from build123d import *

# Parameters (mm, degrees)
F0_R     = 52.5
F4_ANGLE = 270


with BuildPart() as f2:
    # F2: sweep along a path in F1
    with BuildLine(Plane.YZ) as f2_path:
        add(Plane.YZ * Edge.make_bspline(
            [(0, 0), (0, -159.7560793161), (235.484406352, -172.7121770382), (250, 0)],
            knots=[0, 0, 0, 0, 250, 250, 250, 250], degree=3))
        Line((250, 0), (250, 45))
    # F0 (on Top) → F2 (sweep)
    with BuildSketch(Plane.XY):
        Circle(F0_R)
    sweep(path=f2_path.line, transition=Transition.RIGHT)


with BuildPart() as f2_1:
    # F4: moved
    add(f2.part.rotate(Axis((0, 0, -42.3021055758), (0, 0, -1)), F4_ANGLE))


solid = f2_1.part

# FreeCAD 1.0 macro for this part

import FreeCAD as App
import Part
import Sketcher
from FreeCAD import Vector

doc = App.newDocument("Part")
params = doc.addObject("Spreadsheet::Sheet", "Params")
for row, (alias, value) in enumerate([
    ("sketch1_diameter", "105 mm"),
    ("sketch2_height", "45 mm"),
], start=1):
    params.set(f"A{row}", alias)
    params.set(f"B{row}", "=" + value)
    params.setAlias(f"B{row}", alias)

body = doc.addObject("PartDesign::Body", "Body")

# Sketch on XY plane
sketch1 = body.newObject("Sketcher::SketchObject", "Sketch")
sketch1.AttachmentSupport = (doc.getObject("XY_Plane"), [""])
sketch1.MapMode = "FlatFace"
sketch1.addGeometry(Part.Circle(Vector(0, 0, 0), Vector(0, 0, 1), 52), False)
sketch1.addConstraint([
    Sketcher.Constraint("Coincident", 0, 3, -1, 1),
    Sketcher.Constraint("Diameter", 0, 105.0),
])
sketch1.setExpression("Constraints[1]", "Params.sketch1_diameter")

# Sketch on YZ plane
sketch2 = body.newObject("Sketcher::SketchObject", "Sketch001")
sketch2.AttachmentSupport = (doc.getObject("YZ_Plane"), [""])
sketch2.MapMode = "FlatFace"
sketch2.addGeometry([
    Part.BSplineCurve([Vector(0, 0, 0), Vector(0, -159.756079, 0), Vector(235.484406, -172.712177, 0), Vector(250, 0, 0)], [4, 4], [0, 250], False, 3, [1, 1, 1, 1], False),
    Part.LineSegment(Vector(250, 0, 0), Vector(250, 45, 0)),
], False)
sketch2.addConstraint([
    Sketcher.Constraint("Block", 0),
    Sketcher.Constraint("Coincident", 0, 2, 1, 1),
    Sketcher.Constraint("Vertical", 1),
    Sketcher.Constraint("DistanceY", 1, 1, 1, 2, 45.0),
])
sketch2.setExpression("Constraints[3]", "Params.sketch2_height")
doc.recompute()

additivepipe = body.newObject("PartDesign::AdditivePipe", "AdditivePipe")
additivepipe.Profile = sketch1
additivepipe.Spine = (sketch2, ["Edge1", "Edge2"])
additivepipe.Transition = "Right corner"
body2 = doc.addObject("PartDesign::Body", "Body001")
doc.recompute()

body.Placement = App.Placement(Vector(0, 0, 0), App.Rotation(Vector(0, 0, -1), 270))
boolean = body2.newObject("PartDesign::Boolean", "Boolean")
boolean.Type = "Fuse"
boolean.addObjects([body])

doc.recompute()
